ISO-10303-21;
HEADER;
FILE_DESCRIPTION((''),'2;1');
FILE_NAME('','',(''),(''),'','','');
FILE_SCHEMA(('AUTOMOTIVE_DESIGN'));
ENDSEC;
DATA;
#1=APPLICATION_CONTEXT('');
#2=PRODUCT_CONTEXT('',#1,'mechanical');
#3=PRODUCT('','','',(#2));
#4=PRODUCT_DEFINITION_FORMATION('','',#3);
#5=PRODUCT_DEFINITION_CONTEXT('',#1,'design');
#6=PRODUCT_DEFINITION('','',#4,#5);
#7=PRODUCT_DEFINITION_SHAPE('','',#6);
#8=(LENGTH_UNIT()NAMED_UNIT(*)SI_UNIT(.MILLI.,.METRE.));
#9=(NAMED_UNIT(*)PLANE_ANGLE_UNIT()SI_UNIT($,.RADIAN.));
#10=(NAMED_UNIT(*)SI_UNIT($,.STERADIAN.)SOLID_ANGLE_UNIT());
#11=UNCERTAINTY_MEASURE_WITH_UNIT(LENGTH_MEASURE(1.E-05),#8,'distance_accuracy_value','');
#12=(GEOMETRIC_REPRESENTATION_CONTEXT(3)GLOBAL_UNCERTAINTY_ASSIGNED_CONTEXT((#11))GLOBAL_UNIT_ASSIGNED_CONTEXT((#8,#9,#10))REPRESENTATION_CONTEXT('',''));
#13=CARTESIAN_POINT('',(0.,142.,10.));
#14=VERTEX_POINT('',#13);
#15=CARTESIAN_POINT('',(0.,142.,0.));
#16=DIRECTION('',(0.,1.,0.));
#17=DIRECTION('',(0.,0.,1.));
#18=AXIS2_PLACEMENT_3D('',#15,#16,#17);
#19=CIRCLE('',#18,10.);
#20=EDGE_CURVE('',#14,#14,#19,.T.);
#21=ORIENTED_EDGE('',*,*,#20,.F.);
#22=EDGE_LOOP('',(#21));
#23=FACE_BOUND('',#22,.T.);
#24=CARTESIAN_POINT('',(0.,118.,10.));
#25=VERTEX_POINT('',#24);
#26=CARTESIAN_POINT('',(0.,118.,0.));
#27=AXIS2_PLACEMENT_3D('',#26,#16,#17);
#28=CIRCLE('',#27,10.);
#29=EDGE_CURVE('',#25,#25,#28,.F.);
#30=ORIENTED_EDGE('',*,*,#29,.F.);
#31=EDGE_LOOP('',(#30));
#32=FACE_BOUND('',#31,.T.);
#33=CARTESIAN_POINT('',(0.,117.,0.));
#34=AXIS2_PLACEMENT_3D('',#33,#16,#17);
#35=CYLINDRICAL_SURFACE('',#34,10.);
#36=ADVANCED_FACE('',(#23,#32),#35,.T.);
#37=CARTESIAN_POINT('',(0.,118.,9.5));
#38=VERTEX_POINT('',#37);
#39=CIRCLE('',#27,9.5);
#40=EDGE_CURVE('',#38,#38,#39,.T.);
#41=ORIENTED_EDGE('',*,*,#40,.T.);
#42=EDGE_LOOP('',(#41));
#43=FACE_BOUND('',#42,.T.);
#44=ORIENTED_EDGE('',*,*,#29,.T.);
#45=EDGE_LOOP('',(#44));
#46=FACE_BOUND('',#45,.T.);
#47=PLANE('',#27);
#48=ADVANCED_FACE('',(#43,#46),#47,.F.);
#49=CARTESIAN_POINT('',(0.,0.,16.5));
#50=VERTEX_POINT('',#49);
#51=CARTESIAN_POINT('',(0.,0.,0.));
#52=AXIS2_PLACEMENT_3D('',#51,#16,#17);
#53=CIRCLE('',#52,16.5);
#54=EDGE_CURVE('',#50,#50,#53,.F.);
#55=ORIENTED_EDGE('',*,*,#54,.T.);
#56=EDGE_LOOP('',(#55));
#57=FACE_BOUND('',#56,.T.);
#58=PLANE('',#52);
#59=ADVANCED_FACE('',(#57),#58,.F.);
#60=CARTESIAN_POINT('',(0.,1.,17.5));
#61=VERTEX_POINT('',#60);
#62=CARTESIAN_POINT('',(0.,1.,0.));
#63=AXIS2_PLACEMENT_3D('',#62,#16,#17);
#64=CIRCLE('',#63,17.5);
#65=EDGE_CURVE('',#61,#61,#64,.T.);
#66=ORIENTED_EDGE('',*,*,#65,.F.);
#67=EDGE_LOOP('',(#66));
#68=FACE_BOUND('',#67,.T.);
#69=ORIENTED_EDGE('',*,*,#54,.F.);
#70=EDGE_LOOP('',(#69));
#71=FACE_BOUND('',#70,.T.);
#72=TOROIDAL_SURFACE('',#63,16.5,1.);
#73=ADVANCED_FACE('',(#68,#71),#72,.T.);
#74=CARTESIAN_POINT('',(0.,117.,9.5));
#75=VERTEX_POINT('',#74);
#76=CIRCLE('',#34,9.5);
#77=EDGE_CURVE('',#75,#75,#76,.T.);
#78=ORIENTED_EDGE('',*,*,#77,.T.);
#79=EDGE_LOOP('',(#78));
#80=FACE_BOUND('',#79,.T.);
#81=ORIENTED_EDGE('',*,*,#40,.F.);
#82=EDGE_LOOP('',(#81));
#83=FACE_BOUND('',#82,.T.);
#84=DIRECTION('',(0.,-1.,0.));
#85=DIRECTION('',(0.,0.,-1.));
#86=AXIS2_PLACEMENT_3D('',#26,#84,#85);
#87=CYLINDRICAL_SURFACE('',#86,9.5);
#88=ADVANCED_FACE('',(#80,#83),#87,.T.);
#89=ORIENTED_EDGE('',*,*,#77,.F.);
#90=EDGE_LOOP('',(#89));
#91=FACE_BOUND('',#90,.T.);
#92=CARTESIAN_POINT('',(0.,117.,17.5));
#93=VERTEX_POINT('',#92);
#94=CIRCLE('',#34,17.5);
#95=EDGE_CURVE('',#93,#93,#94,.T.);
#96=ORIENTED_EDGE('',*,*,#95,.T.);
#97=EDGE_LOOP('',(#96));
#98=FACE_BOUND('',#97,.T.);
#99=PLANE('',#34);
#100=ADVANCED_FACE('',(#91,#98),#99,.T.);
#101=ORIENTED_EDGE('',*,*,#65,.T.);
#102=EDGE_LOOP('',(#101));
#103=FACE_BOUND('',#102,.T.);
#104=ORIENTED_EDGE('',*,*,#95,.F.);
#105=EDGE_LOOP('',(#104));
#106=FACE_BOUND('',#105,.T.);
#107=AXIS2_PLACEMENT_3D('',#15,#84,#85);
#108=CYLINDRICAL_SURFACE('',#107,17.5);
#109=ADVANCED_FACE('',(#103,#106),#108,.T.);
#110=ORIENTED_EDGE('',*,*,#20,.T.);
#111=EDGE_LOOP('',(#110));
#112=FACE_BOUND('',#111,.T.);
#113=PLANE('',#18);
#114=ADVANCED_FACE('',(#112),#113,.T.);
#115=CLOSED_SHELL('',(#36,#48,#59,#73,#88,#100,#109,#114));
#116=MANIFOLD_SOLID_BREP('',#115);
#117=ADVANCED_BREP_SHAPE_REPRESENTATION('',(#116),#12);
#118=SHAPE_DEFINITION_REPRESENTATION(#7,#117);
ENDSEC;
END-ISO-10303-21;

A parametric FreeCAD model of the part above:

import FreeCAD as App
import Part
import Sketcher
from FreeCAD import Vector
Q = App.Units.Quantity


def edges_at(feature, points):
    """Names of the edges that pass closest to the given points."""
    edges = feature.Shape.Edges
    near = lambda p: min(range(len(edges)), key=lambda i: edges[i].distToShape(Part.Vertex(*p))[0])
    return sorted({f"Edge{near(p) + 1}" for p in points})

doc = App.newDocument("Part")
params = doc.addObject("Spreadsheet::Sheet", "Params")
for row, (alias, value) in enumerate([
    ("sketch1_diameter", "35 mm"),
    ("pad1_length", "142 mm"),
    ("sketch2_diameter", "20 mm"),
    ("pocket1_length", "25 mm"),
    ("sketch3_diameter", "19 mm"),
    ("pocket2_length", "1 mm"),
    ("fillet_radius", "1 mm"),
], start=1):
    params.set(f"A{row}", alias)
    params.set(f"B{row}", "=" + value)
    params.setAlias(f"B{row}", alias)

body = doc.addObject("PartDesign::Body", "Body")

# Sketch on XZ plane
sketch1 = body.newObject("Sketcher::SketchObject", "Sketch")
sketch1.AttachmentSupport = (doc.getObject("XZ_Plane"), [""])
sketch1.MapMode = "FlatFace"
sketch1.addGeometry(Part.Circle(Vector(0, 0, 0), Vector(0, 0, 1), 18), False)
sketch1.addConstraint(Sketcher.Constraint("Coincident", 0, 3, -1, 1))
sketch1.addConstraint(Sketcher.Constraint("Diameter", 0, Q("35 mm")))
sketch1.setExpression("Constraints[1]", "Params.sketch1_diameter")
pad1 = body.newObject("PartDesign::Pad", "Pad")
pad1.Profile = sketch1
pad1.setExpression("Length", "Params.pad1_length")
pad1.Reversed = True

# Sketch on XZ plane
sketch2 = body.newObject("Sketcher::SketchObject", "Sketch001")
sketch2.AttachmentSupport = (doc.getObject("XZ_Plane"), [""])
sketch2.MapMode = "FlatFace"
sketch2.AttachmentOffset = App.Placement(Vector(0, 0, -142), App.Rotation())
sketch2.addGeometry(Part.LineSegment(Vector(-34, -34, 0), Vector(-34, 34, 0)), False)
sketch2.addGeometry(Part.LineSegment(Vector(-34, 34, 0), Vector(34, 34, 0)), False)
sketch2.addGeometry(Part.LineSegment(Vector(34, 34, 0), Vector(34, -34, 0)), False)
sketch2.addGeometry(Part.LineSegment(Vector(34, -34, 0), Vector(-34, -34, 0)), False)
sketch2.addGeometry(Part.Circle(Vector(0, 0, 0), Vector(0, 0, 1), 10), False)
sketch2.addConstraint(Sketcher.Constraint("Coincident", 0, 2, 1, 1))
sketch2.addConstraint(Sketcher.Constraint("Coincident", 1, 2, 2, 1))
sketch2.addConstraint(Sketcher.Constraint("Coincident", 2, 2, 3, 1))
sketch2.addConstraint(Sketcher.Constraint("Coincident", 3, 2, 0, 1))
sketch2.addConstraint(Sketcher.Constraint("Vertical", 0))
sketch2.addConstraint(Sketcher.Constraint("Horizontal", 1))
sketch2.addConstraint(Sketcher.Constraint("Vertical", 2))
sketch2.addConstraint(Sketcher.Constraint("Horizontal", 3))
sketch2.addConstraint(Sketcher.Constraint("Coincident", 4, 3, -1, 1))
sketch2.addConstraint(Sketcher.Constraint("Symmetric", 0, 2, 2, 2, -1, 1))
sketch2.addConstraint(Sketcher.Constraint("Equal", 3, 0))
sketch2.addConstraint(Sketcher.Constraint("Diameter", 4, Q("20 mm")))
sketch2.addConstraint(Sketcher.Constraint("DistanceX", 1, 1, 1, 2, Q("67.076 mm")))
sketch2.setExpression("Constraints[11]", "Params.sketch2_diameter")
pocket1 = body.newObject("PartDesign::Pocket", "Pocket")
pocket1.Profile = sketch2
pocket1.setExpression("Length", "Params.pocket1_length")
pocket1.Reversed = True

# Sketch on XZ plane
sketch3 = body.newObject("Sketcher::SketchObject", "Sketch002")
sketch3.AttachmentSupport = (doc.getObject("XZ_Plane"), [""])
sketch3.MapMode = "FlatFace"
sketch3.AttachmentOffset = App.Placement(Vector(0, 0, -117), App.Rotation())
sketch3.addGeometry(Part.LineSegment(Vector(-34, -34, 0), Vector(-34, 34, 0)), False)
sketch3.addGeometry(Part.LineSegment(Vector(-34, 34, 0), Vector(34, 34, 0)), False)
sketch3.addGeometry(Part.LineSegment(Vector(34, 34, 0), Vector(34, -34, 0)), False)
sketch3.addGeometry(Part.LineSegment(Vector(34, -34, 0), Vector(-34, -34, 0)), False)
sketch3.addGeometry(Part.Circle(Vector(0, 0, 0), Vector(0, 0, 1), 10), False)
sketch3.addConstraint(Sketcher.Constraint("Coincident", 0, 2, 1, 1))
sketch3.addConstraint(Sketcher.Constraint("Coincident", 1, 2, 2, 1))
sketch3.addConstraint(Sketcher.Constraint("Coincident", 2, 2, 3, 1))
sketch3.addConstraint(Sketcher.Constraint("Coincident", 3, 2, 0, 1))
sketch3.addConstraint(Sketcher.Constraint("Vertical", 0))
sketch3.addConstraint(Sketcher.Constraint("Horizontal", 1))
sketch3.addConstraint(Sketcher.Constraint("Vertical", 2))
sketch3.addConstraint(Sketcher.Constraint("Horizontal", 3))
sketch3.addConstraint(Sketcher.Constraint("Coincident", 4, 3, -1, 1))
sketch3.addConstraint(Sketcher.Constraint("Symmetric", 0, 2, 2, 2, -1, 1))
sketch3.addConstraint(Sketcher.Constraint("Equal", 3, 0))
sketch3.addConstraint(Sketcher.Constraint("Diameter", 4, Q("19 mm")))
sketch3.addConstraint(Sketcher.Constraint("DistanceX", 1, 1, 1, 2, Q("67.076 mm")))
sketch3.setExpression("Constraints[11]", "Params.sketch3_diameter")
pocket2 = body.newObject("PartDesign::Pocket", "Pocket001")
pocket2.Profile = sketch3
pocket2.setExpression("Length", "Params.pocket2_length")
doc.recompute()

fillet = body.newObject("PartDesign::Fillet", "Fillet")
fillet.Base = (pocket2, edges_at(pocket2, [(-17.5, 0, 0)]))
fillet.setExpression("Radius", "Params.fillet_radius")

doc.recompute()
